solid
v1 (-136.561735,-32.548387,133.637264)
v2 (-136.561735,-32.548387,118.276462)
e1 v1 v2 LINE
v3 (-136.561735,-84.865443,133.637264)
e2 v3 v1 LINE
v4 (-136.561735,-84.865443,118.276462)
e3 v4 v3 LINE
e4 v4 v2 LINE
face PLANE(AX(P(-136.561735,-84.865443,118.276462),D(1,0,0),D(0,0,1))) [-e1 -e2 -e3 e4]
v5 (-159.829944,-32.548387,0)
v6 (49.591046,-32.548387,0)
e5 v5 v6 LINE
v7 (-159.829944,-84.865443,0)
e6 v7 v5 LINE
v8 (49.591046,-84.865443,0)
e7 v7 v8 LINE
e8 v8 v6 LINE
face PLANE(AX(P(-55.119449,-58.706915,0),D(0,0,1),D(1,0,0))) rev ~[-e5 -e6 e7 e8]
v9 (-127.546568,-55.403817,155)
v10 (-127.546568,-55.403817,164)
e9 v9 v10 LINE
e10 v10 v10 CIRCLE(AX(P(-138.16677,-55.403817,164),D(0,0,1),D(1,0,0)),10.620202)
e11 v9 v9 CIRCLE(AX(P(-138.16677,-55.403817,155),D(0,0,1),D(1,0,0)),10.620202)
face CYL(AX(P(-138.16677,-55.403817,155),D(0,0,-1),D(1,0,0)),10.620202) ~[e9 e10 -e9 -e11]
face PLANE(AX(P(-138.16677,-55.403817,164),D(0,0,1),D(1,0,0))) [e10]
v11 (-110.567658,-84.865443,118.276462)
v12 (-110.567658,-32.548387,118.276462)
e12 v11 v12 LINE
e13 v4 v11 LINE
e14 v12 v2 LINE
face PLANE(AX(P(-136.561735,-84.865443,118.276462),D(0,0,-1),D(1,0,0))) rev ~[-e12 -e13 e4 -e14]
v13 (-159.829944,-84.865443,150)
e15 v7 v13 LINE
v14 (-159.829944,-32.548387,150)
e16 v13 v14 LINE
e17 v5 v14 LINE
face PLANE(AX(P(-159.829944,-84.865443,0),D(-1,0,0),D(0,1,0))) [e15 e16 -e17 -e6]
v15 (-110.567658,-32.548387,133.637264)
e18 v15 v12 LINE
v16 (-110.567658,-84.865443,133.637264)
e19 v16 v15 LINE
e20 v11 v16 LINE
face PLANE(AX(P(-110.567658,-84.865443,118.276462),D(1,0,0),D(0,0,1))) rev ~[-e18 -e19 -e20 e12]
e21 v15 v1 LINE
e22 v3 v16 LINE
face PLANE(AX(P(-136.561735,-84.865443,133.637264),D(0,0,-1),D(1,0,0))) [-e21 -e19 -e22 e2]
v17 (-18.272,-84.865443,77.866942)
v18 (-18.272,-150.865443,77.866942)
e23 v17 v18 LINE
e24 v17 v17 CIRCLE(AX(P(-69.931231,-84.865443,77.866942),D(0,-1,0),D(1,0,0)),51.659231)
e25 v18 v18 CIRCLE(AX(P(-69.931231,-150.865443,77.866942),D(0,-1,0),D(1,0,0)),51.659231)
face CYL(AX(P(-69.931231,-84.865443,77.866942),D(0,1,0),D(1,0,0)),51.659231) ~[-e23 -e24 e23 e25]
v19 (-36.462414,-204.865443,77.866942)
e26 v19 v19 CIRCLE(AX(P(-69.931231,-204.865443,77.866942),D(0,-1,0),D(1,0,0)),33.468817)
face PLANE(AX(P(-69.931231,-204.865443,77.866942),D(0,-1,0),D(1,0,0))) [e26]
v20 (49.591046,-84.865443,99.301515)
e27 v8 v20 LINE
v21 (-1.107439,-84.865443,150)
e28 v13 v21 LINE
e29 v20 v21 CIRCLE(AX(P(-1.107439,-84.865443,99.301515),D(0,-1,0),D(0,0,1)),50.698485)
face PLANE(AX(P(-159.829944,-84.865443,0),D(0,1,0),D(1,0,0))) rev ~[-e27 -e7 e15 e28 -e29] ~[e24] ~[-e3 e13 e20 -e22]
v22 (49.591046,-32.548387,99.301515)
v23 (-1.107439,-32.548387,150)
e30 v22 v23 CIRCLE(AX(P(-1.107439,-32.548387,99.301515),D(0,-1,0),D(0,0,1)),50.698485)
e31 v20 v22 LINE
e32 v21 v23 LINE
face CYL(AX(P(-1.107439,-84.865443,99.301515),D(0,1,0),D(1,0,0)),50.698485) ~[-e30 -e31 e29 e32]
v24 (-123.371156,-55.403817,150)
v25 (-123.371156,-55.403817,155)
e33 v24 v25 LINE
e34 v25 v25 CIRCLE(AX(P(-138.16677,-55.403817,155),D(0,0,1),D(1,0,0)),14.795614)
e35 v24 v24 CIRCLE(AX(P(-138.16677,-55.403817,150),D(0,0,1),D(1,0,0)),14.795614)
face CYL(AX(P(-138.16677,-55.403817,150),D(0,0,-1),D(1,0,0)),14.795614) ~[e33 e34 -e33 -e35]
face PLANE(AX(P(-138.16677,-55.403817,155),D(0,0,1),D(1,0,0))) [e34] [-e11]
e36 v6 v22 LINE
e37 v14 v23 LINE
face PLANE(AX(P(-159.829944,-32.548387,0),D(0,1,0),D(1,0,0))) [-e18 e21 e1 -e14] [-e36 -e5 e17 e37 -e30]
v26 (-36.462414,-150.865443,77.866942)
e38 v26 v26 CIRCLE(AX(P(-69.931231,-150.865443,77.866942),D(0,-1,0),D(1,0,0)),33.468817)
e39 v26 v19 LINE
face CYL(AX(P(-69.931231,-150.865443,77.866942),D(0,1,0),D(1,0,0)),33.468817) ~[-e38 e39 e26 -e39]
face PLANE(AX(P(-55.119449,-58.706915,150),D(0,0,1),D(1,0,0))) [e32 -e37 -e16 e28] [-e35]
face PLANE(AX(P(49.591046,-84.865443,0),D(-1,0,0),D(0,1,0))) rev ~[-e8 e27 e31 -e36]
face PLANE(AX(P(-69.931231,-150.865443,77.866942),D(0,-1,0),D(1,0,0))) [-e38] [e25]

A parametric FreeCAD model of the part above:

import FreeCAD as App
import Part
import Sketcher
Q = App.Units.Quantity


def edges_at(feature, points):
    """Names of the edges that pass closest to the given points."""
    edges = feature.Shape.Edges
    near = lambda p: min(range(len(edges)), key=lambda i: edges[i].distToShape(Part.Vertex(*p))[0])
    return sorted({f"Edge{near(p) + 1}" for p in points})


def add_polygon(sketch, points):
    """Adds a closed chain of lines whose ends are joined by coincident constraints."""
    first, n = sketch.GeometryCount, len(points)
    for a, b in zip(points, points[1:] + points[:1]):
        sketch.addGeometry(Part.LineSegment(App.Vector(*a, 0), App.Vector(*b, 0)), False)
    for i in range(n):
        sketch.addConstraint(Sketcher.Constraint("Coincident", first + i, 2, first + (i + 1) % n, 1))

doc = App.newDocument("Part")
body = doc.addObject("PartDesign::Body", "Body")

# Sketch on XY plane
sketch1 = body.newObject("Sketcher::SketchObject", "Sketch")
sketch1.AttachmentSupport = (doc.getObject("XY_Plane"), [""])
sketch1.MapMode = "FlatFace"
add_polygon(sketch1, [(-159.829944, -32.548387), (-159.829944, -84.865443), (49.591046, -84.865443), (49.591046, -32.548387)])  # lines 0-3
sketch1.addConstraint([
    Sketcher.Constraint("Vertical", 0),
    Sketcher.Constraint("Horizontal", 1),
    Sketcher.Constraint("Vertical", 2),
    Sketcher.Constraint("Horizontal", 3),
    Sketcher.Constraint("DistanceX", 1, 1, 1, 2, Q("209.42099 mm")),
    Sketcher.Constraint("DistanceY", 0, 2, 0, 1, Q("52.317056 mm")),
    Sketcher.Constraint("DistanceX", 0, 2, -1, 1, Q("159.829944 mm")),
    Sketcher.Constraint("DistanceY", 0, 2, -1, 1, Q("84.865443 mm")),
])
pad1 = body.newObject("PartDesign::Pad", "Pad")
pad1.Profile = sketch1
pad1.Length = 150
doc.recompute()

fillet = body.newObject("PartDesign::Fillet", "Fillet")
fillet.Base = (pad1, edges_at(pad1, [(49.591, -58.707, 150)]))
fillet.Radius = 50.698485

# Sketch on XZ plane
sketch2 = body.newObject("Sketcher::SketchObject", "Sketch001")
sketch2.AttachmentSupport = (doc.getObject("XZ_Plane"), [""])
sketch2.MapMode = "FlatFace"
sketch2.AttachmentOffset = App.Placement(App.Vector(0, 0, 84.865443), App.Rotation())
sketch2.addGeometry(Part.Circle(App.Vector(-69.931231, 77.866942, 0), App.Vector(0, 0, 1), 51.659231), False)
sketch2.addConstraint([
    Sketcher.Constraint("Diameter", 0, Q("103.318462 mm")),
    Sketcher.Constraint("DistanceX", 0, 3, -1, 1, Q("69.931231 mm")),
    Sketcher.Constraint("DistanceY", -1, 1, 0, 3, Q("77.866942 mm")),
])
pad2 = body.newObject("PartDesign::Pad", "Pad001")
pad2.Profile = sketch2
pad2.Length = 66

# Sketch on XZ plane
sketch3 = body.newObject("Sketcher::SketchObject", "Sketch002")
sketch3.AttachmentSupport = (doc.getObject("XZ_Plane"), [""])
sketch3.MapMode = "FlatFace"
sketch3.AttachmentOffset = App.Placement(App.Vector(0, 0, 150.865443), App.Rotation())
sketch3.addGeometry(Part.Circle(App.Vector(-69.931231, 77.866942, 0), App.Vector(0, 0, 1), 33.468817), False)
sketch3.addConstraint([
    Sketcher.Constraint("Diameter", 0, Q("66.937634 mm")),
    Sketcher.Constraint("DistanceX", 0, 3, -1, 1, Q("69.931231 mm")),
    Sketcher.Constraint("DistanceY", -1, 1, 0, 3, Q("77.866942 mm")),
])
pad3 = body.newObject("PartDesign::Pad", "Pad002")
pad3.Profile = sketch3
pad3.Length = 54

# Sketch on XY plane
sketch4 = body.newObject("Sketcher::SketchObject", "Sketch003")
sketch4.AttachmentSupport = (doc.getObject("XY_Plane"), [""])
sketch4.MapMode = "FlatFace"
sketch4.AttachmentOffset = App.Placement(App.Vector(0, 0, 150), App.Rotation())
sketch4.addGeometry(Part.Circle(App.Vector(-138.16677, -55.403817, 0), App.Vector(0, 0, 1), 14.795614), False)
sketch4.addConstraint([
    Sketcher.Constraint("Diameter", 0, Q("29.591228 mm")),
    Sketcher.Constraint("DistanceX", 0, 3, -1, 1, Q("138.16677 mm")),
    Sketcher.Constraint("DistanceY", 0, 3, -1, 1, Q("55.403817 mm")),
])
pad4 = body.newObject("PartDesign::Pad", "Pad003")
pad4.Profile = sketch4
pad4.Length = 5

# Sketch on XY plane
sketch5 = body.newObject("Sketcher::SketchObject", "Sketch004")
sketch5.AttachmentSupport = (doc.getObject("XY_Plane"), [""])
sketch5.MapMode = "FlatFace"
sketch5.AttachmentOffset = App.Placement(App.Vector(0, 0, 155), App.Rotation())
sketch5.addGeometry(Part.Circle(App.Vector(-138.16677, -55.403817, 0), App.Vector(0, 0, 1), 10.620202), False)
sketch5.addConstraint([
    Sketcher.Constraint("Diameter", 0, Q("21.240404 mm")),
    Sketcher.Constraint("DistanceX", 0, 3, -1, 1, Q("138.16677 mm")),
    Sketcher.Constraint("DistanceY", 0, 3, -1, 1, Q("55.403817 mm")),
])
pad5 = body.newObject("PartDesign::Pad", "Pad004")
pad5.Profile = sketch5
pad5.Length = 9

# Sketch on XZ plane
sketch6 = body.newObject("Sketcher::SketchObject", "Sketch005")
sketch6.AttachmentSupport = (doc.getObject("XZ_Plane"), [""])
sketch6.MapMode = "FlatFace"
sketch6.AttachmentOffset = App.Placement(App.Vector(0, 0, 84.865443), App.Rotation())
add_polygon(sketch6, [(-152.36397, 134.705557), (-152.36397, 117.6939), (-118.316873, 117.6939), (-118.316873, 134.705557)])  # lines 0-3
sketch6.addConstraint([
    Sketcher.Constraint("Vertical", 0),
    Sketcher.Constraint("Horizontal", 1),
    Sketcher.Constraint("Vertical", 2),
    Sketcher.Constraint("Horizontal", 3),
    Sketcher.Constraint("DistanceY", -1, 1, 0, 2, Q("117.6939 mm")),
    Sketcher.Constraint("DistanceX", 1, 1, 1, 2, Q("34.047097 mm")),
    Sketcher.Constraint("DistanceY", 0, 2, 0, 1, Q("17.011657 mm")),
    Sketcher.Constraint("DistanceX", 0, 2, -1, 1, Q("152.36397 mm")),
])
pad6 = body.newObject("PartDesign::Pad", "Pad005")
pad6.Profile = sketch6
pad6.Length = 43
pad6.Reversed = True

# Sketch on XZ plane
sketch7 = body.newObject("Sketcher::SketchObject", "Sketch006")
sketch7.AttachmentSupport = (doc.getObject("XZ_Plane"), [""])
sketch7.MapMode = "FlatFace"
sketch7.AttachmentOffset = App.Placement(App.Vector(0, 0, 84.865443), App.Rotation())
add_polygon(sketch7, [(-136.561735, 133.637264), (-136.561735, 118.276462), (-110.567658, 118.276462), (-110.567658, 133.637264)])  # lines 0-3
sketch7.addConstraint([
    Sketcher.Constraint("Vertical", 0),
    Sketcher.Constraint("Horizontal", 1),
    Sketcher.Constraint("Vertical", 2),
    Sketcher.Constraint("Horizontal", 3),
    Sketcher.Constraint("DistanceY", 0, 2, 0, 1, Q("15.360802 mm")),
    Sketcher.Constraint("DistanceX", 1, 1, 1, 2, Q("25.994077 mm")),
    Sketcher.Constraint("DistanceY", -1, 1, 0, 2, Q("118.276462 mm")),
    Sketcher.Constraint("DistanceX", 1, 2, -1, 1, Q("110.567658 mm")),
])
pocket1 = body.newObject("PartDesign::Pocket", "Pocket")
pocket1.Profile = sketch7
pocket1.Length = 77

doc.recompute()
